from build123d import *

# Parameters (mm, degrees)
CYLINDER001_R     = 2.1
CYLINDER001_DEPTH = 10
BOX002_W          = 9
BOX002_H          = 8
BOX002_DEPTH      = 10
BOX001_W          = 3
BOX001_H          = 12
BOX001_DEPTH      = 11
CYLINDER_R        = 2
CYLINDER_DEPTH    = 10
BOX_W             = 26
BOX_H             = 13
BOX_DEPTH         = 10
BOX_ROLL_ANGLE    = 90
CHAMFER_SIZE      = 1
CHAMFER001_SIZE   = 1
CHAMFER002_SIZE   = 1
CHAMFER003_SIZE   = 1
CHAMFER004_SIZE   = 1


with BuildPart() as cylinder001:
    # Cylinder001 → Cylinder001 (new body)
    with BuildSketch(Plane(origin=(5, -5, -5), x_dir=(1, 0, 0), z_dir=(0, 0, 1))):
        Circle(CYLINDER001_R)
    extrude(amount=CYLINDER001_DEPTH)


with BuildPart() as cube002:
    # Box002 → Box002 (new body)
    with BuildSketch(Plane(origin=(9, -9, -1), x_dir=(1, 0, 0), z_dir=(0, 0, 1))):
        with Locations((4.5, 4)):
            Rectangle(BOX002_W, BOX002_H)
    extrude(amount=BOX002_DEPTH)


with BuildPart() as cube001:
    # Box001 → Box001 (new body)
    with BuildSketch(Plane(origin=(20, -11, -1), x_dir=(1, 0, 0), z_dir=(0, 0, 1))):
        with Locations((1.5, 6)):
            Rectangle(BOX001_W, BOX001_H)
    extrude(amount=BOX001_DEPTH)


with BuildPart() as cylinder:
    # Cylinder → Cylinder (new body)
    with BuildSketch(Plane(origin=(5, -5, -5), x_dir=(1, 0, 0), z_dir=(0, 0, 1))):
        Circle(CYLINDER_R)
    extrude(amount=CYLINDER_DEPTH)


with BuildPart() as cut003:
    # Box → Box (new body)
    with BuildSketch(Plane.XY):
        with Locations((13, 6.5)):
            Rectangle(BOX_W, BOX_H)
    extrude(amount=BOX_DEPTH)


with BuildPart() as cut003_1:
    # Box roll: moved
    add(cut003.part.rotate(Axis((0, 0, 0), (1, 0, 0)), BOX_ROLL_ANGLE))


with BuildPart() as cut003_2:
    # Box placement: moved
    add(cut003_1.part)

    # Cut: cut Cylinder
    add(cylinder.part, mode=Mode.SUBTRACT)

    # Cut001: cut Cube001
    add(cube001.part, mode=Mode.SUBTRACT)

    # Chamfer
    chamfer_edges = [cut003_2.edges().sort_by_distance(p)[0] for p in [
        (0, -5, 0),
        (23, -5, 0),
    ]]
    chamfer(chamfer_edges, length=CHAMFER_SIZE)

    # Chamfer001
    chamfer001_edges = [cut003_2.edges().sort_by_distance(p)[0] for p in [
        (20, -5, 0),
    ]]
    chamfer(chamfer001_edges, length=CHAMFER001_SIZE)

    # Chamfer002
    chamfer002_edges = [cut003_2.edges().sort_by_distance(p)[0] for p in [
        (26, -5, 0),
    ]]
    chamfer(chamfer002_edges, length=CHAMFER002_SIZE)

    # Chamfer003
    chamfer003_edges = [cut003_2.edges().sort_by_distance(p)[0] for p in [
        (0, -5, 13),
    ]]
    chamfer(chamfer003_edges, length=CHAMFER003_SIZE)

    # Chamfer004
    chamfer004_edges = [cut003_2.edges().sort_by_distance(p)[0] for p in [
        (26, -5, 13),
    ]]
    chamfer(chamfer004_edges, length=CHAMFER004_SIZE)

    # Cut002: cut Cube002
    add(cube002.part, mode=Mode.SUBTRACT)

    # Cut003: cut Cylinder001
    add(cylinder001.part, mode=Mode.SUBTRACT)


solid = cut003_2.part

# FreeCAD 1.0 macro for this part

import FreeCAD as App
import Part
import Sketcher
Q = App.Units.Quantity


def edges_at(feature, points):
    """Names of the edges that pass closest to the given points."""
    edges = feature.Shape.Edges
    near = lambda p: min(range(len(edges)), key=lambda i: edges[i].distToShape(Part.Vertex(*p))[0])
    return sorted({f"Edge{near(p) + 1}" for p in points})

doc = App.newDocument("Part")
body = doc.addObject("PartDesign::Body", "Body")

sketch1 = body.newObject("Sketcher::SketchObject", "Sketch")
sketch1.AttachmentSupport = (doc.getObject("XY_Plane"), [""])
sketch1.MapMode = "FlatFace"
sketch1.AttachmentOffset = App.Placement(App.Vector(0, 0, -5), App.Rotation())
sketch1.addGeometry(Part.Circle(App.Vector(5, -5, 0), App.Vector(0, 0, 1), 2.1), False)
sketch1.addConstraint([
    Sketcher.Constraint("Diameter", 0, Q("4.2 mm")),
    Sketcher.Constraint("DistanceX", -1, 1, 0, 3, Q("5 mm")),
    Sketcher.Constraint("DistanceY", 0, 3, -1, 1, Q("5 mm")),
])
pad1 = body.newObject("PartDesign::Pad", "Pad")
pad1.Profile = sketch1
pad1.Length = 10
body2 = doc.addObject("PartDesign::Body", "Body001")

sketch2 = body2.newObject("Sketcher::SketchObject", "Sketch001")
sketch2.AttachmentSupport = (doc.getObject("XY_Plane001"), [""])
sketch2.MapMode = "FlatFace"
sketch2.AttachmentOffset = App.Placement(App.Vector(0, 0, -1), App.Rotation())
sketch2.addGeometry([
    Part.LineSegment(App.Vector(9, -1, 0), App.Vector(9, -9, 0)),
    Part.LineSegment(App.Vector(9, -9, 0), App.Vector(18, -9, 0)),
    Part.LineSegment(App.Vector(18, -9, 0), App.Vector(18, -1, 0)),
    Part.LineSegment(App.Vector(18, -1, 0), App.Vector(9, -1, 0)),
], False)
sketch2.addConstraint([
    Sketcher.Constraint("Coincident", 0, 2, 1, 1),
    Sketcher.Constraint("Coincident", 1, 2, 2, 1),
    Sketcher.Constraint("Coincident", 2, 2, 3, 1),
    Sketcher.Constraint("Coincident", 3, 2, 0, 1),
    Sketcher.Constraint("Vertical", 0),
    Sketcher.Constraint("Horizontal", 1),
    Sketcher.Constraint("Vertical", 2),
    Sketcher.Constraint("Horizontal", 3),
    Sketcher.Constraint("DistanceX", 1, 1, 1, 2, Q("9 mm")),
    Sketcher.Constraint("DistanceY", 0, 2, 0, 1, Q("8 mm")),
    Sketcher.Constraint("DistanceX", -1, 1, 0, 2, Q("9 mm")),
    Sketcher.Constraint("DistanceY", 0, 2, -1, 1, Q("9 mm")),
])
pad2 = body2.newObject("PartDesign::Pad", "Pad001")
pad2.Profile = sketch2
pad2.Length = 10
body3 = doc.addObject("PartDesign::Body", "Body002")

sketch3 = body3.newObject("Sketcher::SketchObject", "Sketch002")
sketch3.AttachmentSupport = (doc.getObject("XY_Plane002"), [""])
sketch3.MapMode = "FlatFace"
sketch3.AttachmentOffset = App.Placement(App.Vector(0, 0, -1), App.Rotation())
sketch3.addGeometry([
    Part.LineSegment(App.Vector(20, 1, 0), App.Vector(20, -11, 0)),
    Part.LineSegment(App.Vector(20, -11, 0), App.Vector(23, -11, 0)),
    Part.LineSegment(App.Vector(23, -11, 0), App.Vector(23, 1, 0)),
    Part.LineSegment(App.Vector(23, 1, 0), App.Vector(20, 1, 0)),
], False)
sketch3.addConstraint([
    Sketcher.Constraint("Coincident", 0, 2, 1, 1),
    Sketcher.Constraint("Coincident", 1, 2, 2, 1),
    Sketcher.Constraint("Coincident", 2, 2, 3, 1),
    Sketcher.Constraint("Coincident", 3, 2, 0, 1),
    Sketcher.Constraint("Vertical", 0),
    Sketcher.Constraint("Horizontal", 1),
    Sketcher.Constraint("Vertical", 2),
    Sketcher.Constraint("Horizontal", 3),
    Sketcher.Constraint("DistanceX", 1, 1, 1, 2, Q("3 mm")),
    Sketcher.Constraint("DistanceY", 0, 2, 0, 1, Q("12 mm")),
    Sketcher.Constraint("DistanceX", -1, 1, 0, 2, Q("20 mm")),
    Sketcher.Constraint("DistanceY", 0, 2, -1, 1, Q("11 mm")),
])
pad3 = body3.newObject("PartDesign::Pad", "Pad002")
pad3.Profile = sketch3
pad3.Length = 11
body4 = doc.addObject("PartDesign::Body", "Body003")

sketch4 = body4.newObject("Sketcher::SketchObject", "Sketch003")
sketch4.AttachmentSupport = (doc.getObject("XY_Plane003"), [""])
sketch4.MapMode = "FlatFace"
sketch4.AttachmentOffset = App.Placement(App.Vector(0, 0, -5), App.Rotation())
sketch4.addGeometry(Part.Circle(App.Vector(5, -5, 0), App.Vector(0, 0, 1), 2), False)
sketch4.addConstraint([
    Sketcher.Constraint("Diameter", 0, Q("4 mm")),
    Sketcher.Constraint("DistanceX", -1, 1, 0, 3, Q("5 mm")),
    Sketcher.Constraint("DistanceY", 0, 3, -1, 1, Q("5 mm")),
])
pad4 = body4.newObject("PartDesign::Pad", "Pad003")
pad4.Profile = sketch4
pad4.Length = 10
body5 = doc.addObject("PartDesign::Body", "Body004")

sketch5 = body5.newObject("Sketcher::SketchObject", "Sketch004")
sketch5.AttachmentSupport = (doc.getObject("XY_Plane004"), [""])
sketch5.MapMode = "FlatFace"
sketch5.addGeometry([
    Part.LineSegment(App.Vector(0, 13, 0), App.Vector(0, 0, 0)),
    Part.LineSegment(App.Vector(0, 0, 0), App.Vector(26, 0, 0)),
    Part.LineSegment(App.Vector(26, 0, 0), App.Vector(26, 13, 0)),
    Part.LineSegment(App.Vector(26, 13, 0), App.Vector(0, 13, 0)),
], False)
sketch5.addConstraint([
    Sketcher.Constraint("Coincident", 0, 2, 1, 1),
    Sketcher.Constraint("Coincident", 1, 2, 2, 1),
    Sketcher.Constraint("Coincident", 2, 2, 3, 1),
    Sketcher.Constraint("Coincident", 3, 2, 0, 1),
    Sketcher.Constraint("Vertical", 0),
    Sketcher.Constraint("Horizontal", 1),
    Sketcher.Constraint("Vertical", 2),
    Sketcher.Constraint("Horizontal", 3),
    Sketcher.Constraint("Coincident", 0, 2, -1, 1),
    Sketcher.Constraint("DistanceX", 1, 1, 1, 2, Q("26 mm")),
    Sketcher.Constraint("DistanceY", 0, 2, 0, 1, Q("13 mm")),
])
pad5 = body5.newObject("PartDesign::Pad", "Pad004")
pad5.Profile = sketch5
pad5.Length = 10
body6 = doc.addObject("PartDesign::Body", "Body005")
doc.recompute()

body5.Placement = App.Placement(App.Vector(0, 0, 0), App.Rotation(App.Vector(1, 0, 0), 90))
boolean = body6.newObject("PartDesign::Boolean", "Boolean")
boolean.Type = "Fuse"
boolean.addObjects([body5])
doc.recompute()

boolean2 = body6.newObject("PartDesign::Boolean", "Boolean001")
boolean2.Type = "Cut"
boolean2.addObjects([body4])
doc.recompute()

boolean3 = body6.newObject("PartDesign::Boolean", "Boolean002")
boolean3.Type = "Cut"
boolean3.addObjects([body3])
doc.recompute()

chamfer = body6.newObject("PartDesign::Chamfer", "Chamfer")
chamfer.Base = (boolean3, edges_at(boolean3, [(0, -5, 0), (23, -5, 0)]))
chamfer.Size = 1
doc.recompute()

chamfer2 = body6.newObject("PartDesign::Chamfer", "Chamfer001")
chamfer2.Base = (chamfer, edges_at(chamfer, [(20, -5, 0)]))
chamfer2.Size = 1
doc.recompute()

chamfer3 = body6.newObject("PartDesign::Chamfer", "Chamfer002")
chamfer3.Base = (chamfer2, edges_at(chamfer2, [(26, -5, 0)]))
chamfer3.Size = 1
doc.recompute()

chamfer4 = body6.newObject("PartDesign::Chamfer", "Chamfer003")
chamfer4.Base = (chamfer3, edges_at(chamfer3, [(0, -5, 13)]))
chamfer4.Size = 1
doc.recompute()

chamfer5 = body6.newObject("PartDesign::Chamfer", "Chamfer004")
chamfer5.Base = (chamfer4, edges_at(chamfer4, [(26, -5, 13)]))
chamfer5.Size = 1
doc.recompute()

boolean4 = body6.newObject("PartDesign::Boolean", "Boolean003")
boolean4.Type = "Cut"
boolean4.addObjects([body2])
doc.recompute()

boolean5 = body6.newObject("PartDesign::Boolean", "Boolean004")
boolean5.Type = "Cut"
boolean5.addObjects([body])

doc.recompute()
